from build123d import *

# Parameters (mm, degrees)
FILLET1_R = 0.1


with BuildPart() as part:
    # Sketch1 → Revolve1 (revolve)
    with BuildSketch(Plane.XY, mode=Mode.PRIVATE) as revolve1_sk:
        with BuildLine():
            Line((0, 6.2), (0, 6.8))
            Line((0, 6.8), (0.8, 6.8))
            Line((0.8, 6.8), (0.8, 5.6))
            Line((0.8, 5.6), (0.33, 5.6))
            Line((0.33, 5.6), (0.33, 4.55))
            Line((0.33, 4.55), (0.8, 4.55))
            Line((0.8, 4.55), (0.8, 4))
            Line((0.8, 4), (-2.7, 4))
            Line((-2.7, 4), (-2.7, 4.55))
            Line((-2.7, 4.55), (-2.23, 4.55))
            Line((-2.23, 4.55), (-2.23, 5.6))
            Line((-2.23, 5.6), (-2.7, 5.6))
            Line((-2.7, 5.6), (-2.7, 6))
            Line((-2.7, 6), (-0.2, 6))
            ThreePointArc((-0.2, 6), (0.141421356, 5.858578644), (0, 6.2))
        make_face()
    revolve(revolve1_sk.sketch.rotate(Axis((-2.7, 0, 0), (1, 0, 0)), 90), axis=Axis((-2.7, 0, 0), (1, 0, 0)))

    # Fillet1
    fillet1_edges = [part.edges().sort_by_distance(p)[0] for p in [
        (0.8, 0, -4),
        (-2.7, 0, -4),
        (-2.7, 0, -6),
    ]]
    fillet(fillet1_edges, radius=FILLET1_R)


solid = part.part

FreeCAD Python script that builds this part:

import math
import FreeCAD as App
import Part
import Sketcher
from FreeCAD import Vector
Q = App.Units.Quantity


def edges_at(feature, points):
    """Names of the edges that pass closest to the given points."""
    edges = feature.Shape.Edges
    near = lambda p: min(range(len(edges)), key=lambda i: edges[i].distToShape(Part.Vertex(*p))[0])
    return sorted({f"Edge{near(p) + 1}" for p in points})

doc = App.newDocument("Part")
params = doc.addObject("Spreadsheet::Sheet", "Params")
for row, (alias, value) in enumerate([
    ("sketch1_radius", "0.2 mm"),
    ("sketch1_width", "2.5 mm"),
    ("sketch1_width2", "3.5 mm"),
    ("sketch1_height", "0.6 mm"),
    ("sketch1_height2", "0.4 mm"),
    ("revolution_angle", "360 deg"),
    ("fillet_radius", "0.1 mm"),
], start=1):
    params.set(f"A{row}", alias)
    params.set(f"B{row}", "=" + value)
    params.setAlias(f"B{row}", alias)

body = doc.addObject("PartDesign::Body", "Body")

# Sketch on XY plane
sketch1 = body.newObject("Sketcher::SketchObject", "Sketch")
sketch1.AttachmentSupport = (doc.getObject("XY_Plane"), [""])
sketch1.MapMode = "FlatFace"
sketch1.addGeometry([
    Part.LineSegment(Vector(0, 6.8, 0), Vector(0, 6.2, 0)),  # 0
    Part.ArcOfCircle(Part.Circle(Vector(0, 6, 0), Vector(0, 0, 1), 0.2), math.radians(180), math.radians(450)),  # 1
    Part.LineSegment(Vector(-0.2, 6, 0), Vector(-2.7, 6, 0)),  # 2
    Part.LineSegment(Vector(-2.7, 6, 0), Vector(-2.7, 5.6, 0)),  # 3
    Part.LineSegment(Vector(-2.7, 5.6, 0), Vector(-2.23, 5.6, 0)),  # 4
    Part.LineSegment(Vector(-2.23, 5.6, 0), Vector(-2.23, 4.55, 0)),  # 5
    Part.LineSegment(Vector(-2.23, 4.55, 0), Vector(-2.7, 4.55, 0)),  # 6
    Part.LineSegment(Vector(-2.7, 4.55, 0), Vector(-2.7, 4, 0)),  # 7
    Part.LineSegment(Vector(-2.7, 4, 0), Vector(0.8, 4, 0)),  # 8
    Part.LineSegment(Vector(0.8, 4, 0), Vector(0.8, 4.55, 0)),  # 9
    Part.LineSegment(Vector(0.8, 4.55, 0), Vector(0.33, 4.55, 0)),  # 10
    Part.LineSegment(Vector(0.33, 4.55, 0), Vector(0.33, 5.6, 0)),  # 11
    Part.LineSegment(Vector(0.33, 5.6, 0), Vector(0.8, 5.6, 0)),  # 12
    Part.LineSegment(Vector(0.8, 5.6, 0), Vector(0.8, 6.8, 0)),  # 13
    Part.LineSegment(Vector(0.8, 6.8, 0), Vector(0, 6.8, 0)),  # 14
], False)
sketch1.addConstraint([
    Sketcher.Constraint("Coincident", 0, 2, 1, 2),
    Sketcher.Constraint("Coincident", 1, 1, 2, 1),
    Sketcher.Constraint("Coincident", 2, 2, 3, 1),
    Sketcher.Constraint("Coincident", 3, 2, 4, 1),
    Sketcher.Constraint("Coincident", 4, 2, 5, 1),
    Sketcher.Constraint("Coincident", 5, 2, 6, 1),
    Sketcher.Constraint("Coincident", 6, 2, 7, 1),
    Sketcher.Constraint("Coincident", 7, 2, 8, 1),
    Sketcher.Constraint("Coincident", 8, 2, 9, 1),
    Sketcher.Constraint("Coincident", 9, 2, 10, 1),
    Sketcher.Constraint("Coincident", 10, 2, 11, 1),
    Sketcher.Constraint("Coincident", 11, 2, 12, 1),
    Sketcher.Constraint("Coincident", 12, 2, 13, 1),
    Sketcher.Constraint("Coincident", 13, 2, 14, 1),
    Sketcher.Constraint("Coincident", 14, 2, 0, 1),
    Sketcher.Constraint("Vertical", 0),
    Sketcher.Constraint("Horizontal", 2),
    Sketcher.Constraint("Vertical", 3),
    Sketcher.Constraint("Horizontal", 4),
    Sketcher.Constraint("Vertical", 5),
    Sketcher.Constraint("Horizontal", 6),
    Sketcher.Constraint("Vertical", 7),
    Sketcher.Constraint("Horizontal", 8),
    Sketcher.Constraint("Vertical", 9),
    Sketcher.Constraint("Horizontal", 10),
    Sketcher.Constraint("Vertical", 11),
    Sketcher.Constraint("Horizontal", 12),
    Sketcher.Constraint("Vertical", 13),
    Sketcher.Constraint("Horizontal", 14),
    Sketcher.Constraint("PointOnObject", 1, 3, -2),
    Sketcher.Constraint("PointOnObject", 0, 2, -2),
    Sketcher.Constraint("Horizontal", 6, 2, 9, 2),
    Sketcher.Constraint("Horizontal", 4, 2, 11, 2),
    Sketcher.Constraint("Vertical", 3, 2, 6, 2),
    Sketcher.Constraint("Vertical", 9, 2, 12, 2),
    Sketcher.Constraint("Equal", 6, 10),
    Sketcher.Constraint("Radius", 1, Q("0.2 mm")),
    Sketcher.Constraint("DistanceX", 2, 2, 2, 1, Q("2.5 mm")),
    Sketcher.Constraint("DistanceX", 8, 1, 8, 2, Q("3.5 mm")),
    Sketcher.Constraint("DistanceY", 0, 2, 0, 1, Q("0.6 mm")),
    Sketcher.Constraint("DistanceY", 3, 2, 3, 1, Q("0.4 mm")),
    Sketcher.Constraint("DistanceY", 13, 1, 13, 2, Q("1.2 mm")),
    Sketcher.Constraint("DistanceY", -1, 1, 1, 3, Q("6 mm")),
    Sketcher.Constraint("DistanceY", -1, 1, 7, 2, Q("4 mm")),
    Sketcher.Constraint("DistanceX", 4, 1, 4, 2, Q("0.47 mm")),
    Sketcher.Constraint("DistanceY", 5, 2, 5, 1, Q("1.05 mm")),
])
sketch1.setExpression("Constraints[36]", "Params.sketch1_radius")
sketch1.setExpression("Constraints[37]", "Params.sketch1_width")
sketch1.setExpression("Constraints[38]", "Params.sketch1_width2")
sketch1.setExpression("Constraints[39]", "Params.sketch1_height")
sketch1.setExpression("Constraints[40]", "Params.sketch1_height2")
revolution = body.newObject("PartDesign::Revolution", "Revolution")
revolution.Profile = sketch1
revolution.ReferenceAxis = (sketch1, ["H_Axis"])
revolution.setExpression("Angle", "Params.revolution_angle")
doc.recompute()

fillet = body.newObject("PartDesign::Fillet", "Fillet")
fillet.Base = (revolution, edges_at(revolution, [(0.8, 0, -4), (-2.7, 0, -4), (-2.7, 0, -6)]))
fillet.setExpression("Radius", "Params.fillet_radius")

doc.recompute()
